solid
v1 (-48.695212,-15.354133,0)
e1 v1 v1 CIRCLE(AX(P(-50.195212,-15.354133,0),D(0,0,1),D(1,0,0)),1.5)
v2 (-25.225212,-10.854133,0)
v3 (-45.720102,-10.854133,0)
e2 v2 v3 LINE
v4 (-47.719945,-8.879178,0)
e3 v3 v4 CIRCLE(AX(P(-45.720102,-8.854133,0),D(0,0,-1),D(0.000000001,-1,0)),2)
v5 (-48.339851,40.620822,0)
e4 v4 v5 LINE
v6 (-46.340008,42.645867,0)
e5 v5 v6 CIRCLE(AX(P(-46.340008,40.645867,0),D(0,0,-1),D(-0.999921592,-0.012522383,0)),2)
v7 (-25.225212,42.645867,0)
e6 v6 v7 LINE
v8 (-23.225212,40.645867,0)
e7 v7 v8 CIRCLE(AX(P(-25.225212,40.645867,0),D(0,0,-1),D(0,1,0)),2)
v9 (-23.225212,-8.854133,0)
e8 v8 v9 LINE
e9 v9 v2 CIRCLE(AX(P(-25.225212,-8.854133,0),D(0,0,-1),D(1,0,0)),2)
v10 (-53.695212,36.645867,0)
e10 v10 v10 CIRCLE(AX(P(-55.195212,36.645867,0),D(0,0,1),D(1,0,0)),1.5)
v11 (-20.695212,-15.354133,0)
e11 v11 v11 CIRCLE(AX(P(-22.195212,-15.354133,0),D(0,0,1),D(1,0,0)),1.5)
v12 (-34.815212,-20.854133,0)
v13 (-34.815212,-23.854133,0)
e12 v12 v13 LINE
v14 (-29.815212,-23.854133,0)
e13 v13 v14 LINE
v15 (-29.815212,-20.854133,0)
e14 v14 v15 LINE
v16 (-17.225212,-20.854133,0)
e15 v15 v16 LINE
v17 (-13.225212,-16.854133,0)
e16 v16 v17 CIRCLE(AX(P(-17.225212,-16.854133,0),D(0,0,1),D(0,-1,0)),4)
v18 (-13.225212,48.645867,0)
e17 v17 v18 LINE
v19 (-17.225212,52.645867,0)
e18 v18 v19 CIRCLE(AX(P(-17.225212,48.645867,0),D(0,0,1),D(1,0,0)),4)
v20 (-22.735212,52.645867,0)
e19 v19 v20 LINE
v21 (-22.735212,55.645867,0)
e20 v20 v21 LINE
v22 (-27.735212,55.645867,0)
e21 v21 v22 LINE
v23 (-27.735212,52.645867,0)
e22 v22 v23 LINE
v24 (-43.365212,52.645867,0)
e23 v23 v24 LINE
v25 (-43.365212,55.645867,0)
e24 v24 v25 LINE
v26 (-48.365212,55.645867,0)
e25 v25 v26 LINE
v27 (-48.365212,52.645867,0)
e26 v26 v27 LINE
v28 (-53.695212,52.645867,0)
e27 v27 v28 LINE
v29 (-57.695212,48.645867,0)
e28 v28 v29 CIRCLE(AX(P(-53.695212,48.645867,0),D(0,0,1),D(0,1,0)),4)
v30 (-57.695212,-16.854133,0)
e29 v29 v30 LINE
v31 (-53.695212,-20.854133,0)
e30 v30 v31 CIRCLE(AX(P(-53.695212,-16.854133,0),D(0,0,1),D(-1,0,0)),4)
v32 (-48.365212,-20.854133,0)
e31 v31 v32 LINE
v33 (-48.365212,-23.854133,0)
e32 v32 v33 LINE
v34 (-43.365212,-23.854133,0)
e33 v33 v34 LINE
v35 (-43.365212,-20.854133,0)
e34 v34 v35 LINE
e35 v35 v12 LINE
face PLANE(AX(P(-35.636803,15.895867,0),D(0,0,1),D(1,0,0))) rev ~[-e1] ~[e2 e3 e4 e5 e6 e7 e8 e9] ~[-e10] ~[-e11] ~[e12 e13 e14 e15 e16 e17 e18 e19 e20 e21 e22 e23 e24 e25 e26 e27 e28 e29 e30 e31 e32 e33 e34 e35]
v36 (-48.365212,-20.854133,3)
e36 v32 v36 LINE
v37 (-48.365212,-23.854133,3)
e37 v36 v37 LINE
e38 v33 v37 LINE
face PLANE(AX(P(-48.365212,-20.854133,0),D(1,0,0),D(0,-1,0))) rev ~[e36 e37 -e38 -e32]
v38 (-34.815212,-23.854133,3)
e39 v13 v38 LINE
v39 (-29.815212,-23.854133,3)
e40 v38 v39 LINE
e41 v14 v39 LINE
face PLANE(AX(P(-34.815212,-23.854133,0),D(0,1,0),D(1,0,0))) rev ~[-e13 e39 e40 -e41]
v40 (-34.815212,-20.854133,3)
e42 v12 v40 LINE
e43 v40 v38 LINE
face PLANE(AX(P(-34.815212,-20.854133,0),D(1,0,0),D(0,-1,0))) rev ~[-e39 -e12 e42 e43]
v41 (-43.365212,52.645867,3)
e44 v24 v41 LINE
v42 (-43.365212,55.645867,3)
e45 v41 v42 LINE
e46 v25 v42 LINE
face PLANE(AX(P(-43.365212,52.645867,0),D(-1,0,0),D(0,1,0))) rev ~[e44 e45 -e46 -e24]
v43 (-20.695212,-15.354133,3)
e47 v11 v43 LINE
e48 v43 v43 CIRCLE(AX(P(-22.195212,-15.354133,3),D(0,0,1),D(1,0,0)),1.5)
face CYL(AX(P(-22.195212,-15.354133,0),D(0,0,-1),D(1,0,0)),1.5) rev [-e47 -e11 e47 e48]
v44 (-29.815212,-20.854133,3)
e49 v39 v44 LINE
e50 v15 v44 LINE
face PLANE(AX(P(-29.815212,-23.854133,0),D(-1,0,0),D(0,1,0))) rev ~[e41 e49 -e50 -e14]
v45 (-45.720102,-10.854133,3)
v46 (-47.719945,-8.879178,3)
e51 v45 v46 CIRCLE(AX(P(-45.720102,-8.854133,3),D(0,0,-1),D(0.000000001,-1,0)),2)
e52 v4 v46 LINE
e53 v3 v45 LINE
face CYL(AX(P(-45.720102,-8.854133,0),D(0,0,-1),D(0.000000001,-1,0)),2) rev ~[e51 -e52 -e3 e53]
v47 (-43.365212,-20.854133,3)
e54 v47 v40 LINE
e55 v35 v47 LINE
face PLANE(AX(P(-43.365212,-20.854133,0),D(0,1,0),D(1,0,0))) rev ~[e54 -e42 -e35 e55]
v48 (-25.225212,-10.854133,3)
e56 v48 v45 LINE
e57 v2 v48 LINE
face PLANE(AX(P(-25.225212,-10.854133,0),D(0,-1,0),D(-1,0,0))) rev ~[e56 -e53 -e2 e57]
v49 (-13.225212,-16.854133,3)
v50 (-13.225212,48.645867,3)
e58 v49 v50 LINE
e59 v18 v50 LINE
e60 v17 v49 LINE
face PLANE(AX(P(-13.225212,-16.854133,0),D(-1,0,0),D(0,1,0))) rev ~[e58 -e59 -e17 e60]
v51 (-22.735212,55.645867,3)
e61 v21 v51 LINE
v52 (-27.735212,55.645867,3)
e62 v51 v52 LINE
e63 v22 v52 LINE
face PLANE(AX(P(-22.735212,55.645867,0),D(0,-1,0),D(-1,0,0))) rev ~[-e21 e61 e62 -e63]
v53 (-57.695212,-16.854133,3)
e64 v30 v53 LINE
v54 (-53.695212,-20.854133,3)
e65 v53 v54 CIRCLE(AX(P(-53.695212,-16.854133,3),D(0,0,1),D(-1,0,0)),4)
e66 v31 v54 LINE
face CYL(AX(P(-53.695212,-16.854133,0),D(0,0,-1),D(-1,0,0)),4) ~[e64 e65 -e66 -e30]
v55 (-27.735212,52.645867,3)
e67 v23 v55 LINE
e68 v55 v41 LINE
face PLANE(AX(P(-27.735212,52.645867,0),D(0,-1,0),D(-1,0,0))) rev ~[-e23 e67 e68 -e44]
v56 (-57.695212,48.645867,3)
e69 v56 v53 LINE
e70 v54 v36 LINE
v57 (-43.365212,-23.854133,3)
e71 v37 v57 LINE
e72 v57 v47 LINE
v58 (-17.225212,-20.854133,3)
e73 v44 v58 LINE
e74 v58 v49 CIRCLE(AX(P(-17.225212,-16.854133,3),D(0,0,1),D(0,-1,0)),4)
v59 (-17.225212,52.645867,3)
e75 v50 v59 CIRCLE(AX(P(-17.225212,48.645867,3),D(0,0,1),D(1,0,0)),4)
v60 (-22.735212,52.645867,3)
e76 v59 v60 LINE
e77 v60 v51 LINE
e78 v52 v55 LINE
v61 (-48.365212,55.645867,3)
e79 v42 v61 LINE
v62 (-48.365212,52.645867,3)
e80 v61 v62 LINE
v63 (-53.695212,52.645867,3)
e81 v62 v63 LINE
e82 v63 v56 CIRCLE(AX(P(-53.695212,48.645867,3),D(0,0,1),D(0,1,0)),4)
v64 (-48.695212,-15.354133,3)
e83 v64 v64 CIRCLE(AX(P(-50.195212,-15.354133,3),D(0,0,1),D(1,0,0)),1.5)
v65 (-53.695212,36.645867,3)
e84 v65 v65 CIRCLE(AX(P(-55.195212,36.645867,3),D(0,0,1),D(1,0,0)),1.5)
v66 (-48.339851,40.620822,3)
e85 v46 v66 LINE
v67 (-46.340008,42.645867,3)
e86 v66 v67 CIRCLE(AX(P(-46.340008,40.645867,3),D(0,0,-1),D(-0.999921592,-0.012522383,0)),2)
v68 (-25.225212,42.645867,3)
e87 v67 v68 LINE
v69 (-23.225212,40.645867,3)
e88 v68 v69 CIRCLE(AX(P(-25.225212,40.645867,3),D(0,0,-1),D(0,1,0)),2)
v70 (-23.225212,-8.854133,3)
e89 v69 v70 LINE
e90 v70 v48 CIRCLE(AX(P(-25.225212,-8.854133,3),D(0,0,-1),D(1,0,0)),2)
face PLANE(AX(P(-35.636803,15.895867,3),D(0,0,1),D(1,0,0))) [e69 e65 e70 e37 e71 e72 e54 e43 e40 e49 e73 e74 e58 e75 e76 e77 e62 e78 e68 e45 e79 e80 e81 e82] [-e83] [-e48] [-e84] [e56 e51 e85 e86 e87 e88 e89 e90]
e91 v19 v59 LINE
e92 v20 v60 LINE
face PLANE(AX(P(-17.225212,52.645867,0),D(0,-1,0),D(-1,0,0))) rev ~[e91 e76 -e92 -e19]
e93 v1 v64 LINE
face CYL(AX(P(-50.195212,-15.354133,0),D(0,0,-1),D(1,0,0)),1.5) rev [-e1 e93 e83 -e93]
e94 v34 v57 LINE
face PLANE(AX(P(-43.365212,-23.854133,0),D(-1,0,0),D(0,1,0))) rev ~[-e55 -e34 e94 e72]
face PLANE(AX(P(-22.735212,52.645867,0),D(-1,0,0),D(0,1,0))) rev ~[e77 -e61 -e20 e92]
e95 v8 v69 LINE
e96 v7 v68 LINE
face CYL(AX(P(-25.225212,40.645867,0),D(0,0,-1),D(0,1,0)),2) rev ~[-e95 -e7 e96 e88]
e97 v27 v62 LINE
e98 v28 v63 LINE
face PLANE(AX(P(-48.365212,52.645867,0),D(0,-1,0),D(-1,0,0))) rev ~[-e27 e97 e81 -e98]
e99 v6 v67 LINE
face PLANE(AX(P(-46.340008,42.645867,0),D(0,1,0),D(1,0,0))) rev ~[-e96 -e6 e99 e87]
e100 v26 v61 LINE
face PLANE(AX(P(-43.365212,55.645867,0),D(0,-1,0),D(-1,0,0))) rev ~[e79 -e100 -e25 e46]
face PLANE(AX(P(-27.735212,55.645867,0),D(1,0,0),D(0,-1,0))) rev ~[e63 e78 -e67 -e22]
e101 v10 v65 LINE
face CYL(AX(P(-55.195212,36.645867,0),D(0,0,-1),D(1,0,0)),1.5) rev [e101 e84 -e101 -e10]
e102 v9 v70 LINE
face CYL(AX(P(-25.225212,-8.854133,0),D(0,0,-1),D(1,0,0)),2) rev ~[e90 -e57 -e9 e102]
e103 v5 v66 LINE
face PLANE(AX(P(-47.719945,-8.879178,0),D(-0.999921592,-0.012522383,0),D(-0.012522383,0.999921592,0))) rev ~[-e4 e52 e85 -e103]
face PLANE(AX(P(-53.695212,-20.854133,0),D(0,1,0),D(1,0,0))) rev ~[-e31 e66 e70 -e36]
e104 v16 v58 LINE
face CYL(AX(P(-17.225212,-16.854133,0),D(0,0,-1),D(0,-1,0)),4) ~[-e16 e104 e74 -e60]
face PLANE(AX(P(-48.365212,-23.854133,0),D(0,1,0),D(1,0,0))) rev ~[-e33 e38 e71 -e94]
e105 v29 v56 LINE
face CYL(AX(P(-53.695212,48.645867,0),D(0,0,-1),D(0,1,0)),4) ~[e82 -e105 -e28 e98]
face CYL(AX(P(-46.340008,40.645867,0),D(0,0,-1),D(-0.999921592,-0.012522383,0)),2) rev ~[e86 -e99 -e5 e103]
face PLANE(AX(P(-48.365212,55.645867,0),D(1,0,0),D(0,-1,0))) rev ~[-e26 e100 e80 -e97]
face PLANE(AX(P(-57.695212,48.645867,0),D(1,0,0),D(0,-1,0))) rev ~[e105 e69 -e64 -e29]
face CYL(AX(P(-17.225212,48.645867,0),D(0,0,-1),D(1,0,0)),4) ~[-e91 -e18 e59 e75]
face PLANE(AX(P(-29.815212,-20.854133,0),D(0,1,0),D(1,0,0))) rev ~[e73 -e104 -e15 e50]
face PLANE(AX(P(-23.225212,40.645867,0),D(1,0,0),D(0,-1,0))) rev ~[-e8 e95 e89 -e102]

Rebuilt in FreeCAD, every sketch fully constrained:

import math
import FreeCAD as App
import Part
import Sketcher

doc = App.newDocument("Part")
body = doc.addObject("PartDesign::Body", "Body")

# Sketch on XY plane
sketch1 = body.newObject("Sketcher::SketchObject", "Sketch")
sketch1.AttachmentSupport = (doc.getObject("XY_Plane"), [""])
sketch1.MapMode = "FlatFace"
sketch1.addGeometry([
    Part.LineSegment(App.Vector(-27.735212, 52.645867, 0), App.Vector(-43.365212, 52.645867, 0)),  # 0
    Part.LineSegment(App.Vector(-43.365212, 52.645867, 0), App.Vector(-43.365212, 55.645867, 0)),  # 1
    Part.LineSegment(App.Vector(-43.365212, 55.645867, 0), App.Vector(-48.365212, 55.645867, 0)),  # 2
    Part.LineSegment(App.Vector(-48.365212, 55.645867, 0), App.Vector(-48.365212, 52.645867, 0)),  # 3
    Part.LineSegment(App.Vector(-48.365212, 52.645867, 0), App.Vector(-53.695212, 52.645867, 0)),  # 4
    Part.ArcOfCircle(Part.Circle(App.Vector(-53.695212, 48.645867, 0), App.Vector(0, 0, 1), 4), math.radians(90), math.radians(180)),  # 5
    Part.LineSegment(App.Vector(-57.695212, 48.645867, 0), App.Vector(-57.695212, -16.854133, 0)),  # 6
    Part.ArcOfCircle(Part.Circle(App.Vector(-53.695212, -16.854133, 0), App.Vector(0, 0, 1), 4), math.radians(-180), math.radians(-90)),  # 7
    Part.LineSegment(App.Vector(-53.695212, -20.854133, 0), App.Vector(-48.365212, -20.854133, 0)),  # 8
    Part.LineSegment(App.Vector(-48.365212, -20.854133, 0), App.Vector(-48.365212, -23.854133, 0)),  # 9
    Part.LineSegment(App.Vector(-48.365212, -23.854133, 0), App.Vector(-43.365212, -23.854133, 0)),  # 10
    Part.LineSegment(App.Vector(-43.365212, -23.854133, 0), App.Vector(-43.365212, -20.854133, 0)),  # 11
    Part.LineSegment(App.Vector(-43.365212, -20.854133, 0), App.Vector(-34.815212, -20.854133, 0)),  # 12
    Part.LineSegment(App.Vector(-34.815212, -20.854133, 0), App.Vector(-34.815212, -23.854133, 0)),  # 13
    Part.LineSegment(App.Vector(-34.815212, -23.854133, 0), App.Vector(-29.815212, -23.854133, 0)),  # 14
    Part.LineSegment(App.Vector(-29.815212, -23.854133, 0), App.Vector(-29.815212, -20.854133, 0)),  # 15
    Part.LineSegment(App.Vector(-29.815212, -20.854133, 0), App.Vector(-17.225212, -20.854133, 0)),  # 16
    Part.ArcOfCircle(Part.Circle(App.Vector(-17.225212, -16.854133, 0), App.Vector(0, 0, 1), 4), math.radians(-90), math.radians(0)),  # 17
    Part.LineSegment(App.Vector(-13.225212, -16.854133, 0), App.Vector(-13.225212, 48.645867, 0)),  # 18
    Part.ArcOfCircle(Part.Circle(App.Vector(-17.225212, 48.645867, 0), App.Vector(0, 0, 1), 4), math.radians(0), math.radians(90)),  # 19
    Part.LineSegment(App.Vector(-17.225212, 52.645867, 0), App.Vector(-22.735212, 52.645867, 0)),  # 20
    Part.LineSegment(App.Vector(-22.735212, 52.645867, 0), App.Vector(-22.735212, 55.645867, 0)),  # 21
    Part.LineSegment(App.Vector(-22.735212, 55.645867, 0), App.Vector(-27.735212, 55.645867, 0)),  # 22
    Part.LineSegment(App.Vector(-27.735212, 55.645867, 0), App.Vector(-27.735212, 52.645867, 0)),  # 23
    Part.Circle(App.Vector(-50.195212, -15.354133, 0), App.Vector(0, 0, 1), 1.5),  # 24
    Part.Circle(App.Vector(-22.195212, -15.354133, 0), App.Vector(0, 0, 1), 1.5),  # 25
    Part.Circle(App.Vector(-55.195212, 36.645867, 0), App.Vector(0, 0, 1), 1.5),  # 26
    Part.LineSegment(App.Vector(-46.340008, 42.645867, 0), App.Vector(-25.225212, 42.645867, 0)),  # 27
    Part.ArcOfCircle(Part.Circle(App.Vector(-25.225212, 40.645867, 0), App.Vector(0, 0, 1), 2), math.radians(0), math.radians(90)),  # 28
    Part.LineSegment(App.Vector(-23.225212, 40.645867, 0), App.Vector(-23.225212, -8.854133, 0)),  # 29
    Part.ArcOfCircle(Part.Circle(App.Vector(-25.225212, -8.854133, 0), App.Vector(0, 0, 1), 2), math.radians(-90), math.radians(0)),  # 30
    Part.LineSegment(App.Vector(-25.225212, -10.854133, 0), App.Vector(-45.720102, -10.854133, 0)),  # 31
    Part.ArcOfCircle(Part.Circle(App.Vector(-45.720102, -8.854133, 0), App.Vector(0, 0, 1), 2), math.radians(-179.282502), math.radians(-90)),  # 32
    Part.LineSegment(App.Vector(-47.719945, -8.879178, 0), App.Vector(-48.339851, 40.620822, 0)),  # 33
    Part.ArcOfCircle(Part.Circle(App.Vector(-46.340008, 40.645867, 0), App.Vector(0, 0, 1), 2), math.radians(90), math.radians(180.717498)),  # 34
], False)
sketch1.addConstraint([
    Sketcher.Constraint("Coincident", 0, 2, 1, 1),
    Sketcher.Constraint("Coincident", 1, 2, 2, 1),
    Sketcher.Constraint("Coincident", 2, 2, 3, 1),
    Sketcher.Constraint("Coincident", 3, 2, 4, 1),
    Sketcher.Constraint("Coincident", 4, 2, 5, 1),
    Sketcher.Constraint("Coincident", 5, 2, 6, 1),
    Sketcher.Constraint("Coincident", 6, 2, 7, 1),
    Sketcher.Constraint("Coincident", 7, 2, 8, 1),
    Sketcher.Constraint("Coincident", 8, 2, 9, 1),
    Sketcher.Constraint("Coincident", 9, 2, 10, 1),
    Sketcher.Constraint("Coincident", 10, 2, 11, 1),
    Sketcher.Constraint("Coincident", 11, 2, 12, 1),
    Sketcher.Constraint("Coincident", 12, 2, 13, 1),
    Sketcher.Constraint("Coincident", 13, 2, 14, 1),
    Sketcher.Constraint("Coincident", 14, 2, 15, 1),
    Sketcher.Constraint("Coincident", 15, 2, 16, 1),
    Sketcher.Constraint("Coincident", 16, 2, 17, 1),
    Sketcher.Constraint("Coincident", 17, 2, 18, 1),
    Sketcher.Constraint("Coincident", 18, 2, 19, 1),
    Sketcher.Constraint("Coincident", 19, 2, 20, 1),
    Sketcher.Constraint("Coincident", 20, 2, 21, 1),
    Sketcher.Constraint("Coincident", 21, 2, 22, 1),
    Sketcher.Constraint("Coincident", 22, 2, 23, 1),
    Sketcher.Constraint("Coincident", 23, 2, 0, 1),
    Sketcher.Constraint("Coincident", 27, 2, 28, 2),
    Sketcher.Constraint("Coincident", 28, 1, 29, 1),
    Sketcher.Constraint("Coincident", 29, 2, 30, 2),
    Sketcher.Constraint("Coincident", 30, 1, 31, 1),
    Sketcher.Constraint("Coincident", 31, 2, 32, 2),
    Sketcher.Constraint("Coincident", 32, 1, 33, 1),
    Sketcher.Constraint("Coincident", 33, 2, 34, 2),
    Sketcher.Constraint("Coincident", 34, 1, 27, 1),
    Sketcher.Constraint("Horizontal", 0),
    Sketcher.Constraint("Vertical", 1),
    Sketcher.Constraint("Horizontal", 2),
    Sketcher.Constraint("Vertical", 3),
    Sketcher.Constraint("Horizontal", 4),
    Sketcher.Constraint("Vertical", 6),
    Sketcher.Constraint("Horizontal", 8),
    Sketcher.Constraint("Vertical", 9),
    Sketcher.Constraint("Horizontal", 10),
    Sketcher.Constraint("Vertical", 11),
    Sketcher.Constraint("Horizontal", 12),
    Sketcher.Constraint("Vertical", 13),
    Sketcher.Constraint("Horizontal", 14),
    Sketcher.Constraint("Vertical", 15),
    Sketcher.Constraint("Horizontal", 16),
    Sketcher.Constraint("Vertical", 18),
    Sketcher.Constraint("Horizontal", 20),
    Sketcher.Constraint("Vertical", 21),
    Sketcher.Constraint("Horizontal", 22),
    Sketcher.Constraint("Vertical", 23),
    Sketcher.Constraint("Horizontal", 27),
    Sketcher.Constraint("Vertical", 29),
    Sketcher.Constraint("Horizontal", 31),
    Sketcher.Constraint("Diameter", 24, 3.0),
    Sketcher.Constraint("Diameter", 25, 3.0),
    Sketcher.Constraint("Diameter", 26, 3.0),
    Sketcher.Constraint("Radius", 5, 4.0),
    Sketcher.Constraint("Radius", 7, 4.0),
    Sketcher.Constraint("Radius", 17, 4.0),
    Sketcher.Constraint("Radius", 19, 4.0),
    Sketcher.Constraint("Radius", 28, 2.0),
    Sketcher.Constraint("Radius", 30, 2.0),
    Sketcher.Constraint("Radius", 32, 2.0),
    Sketcher.Constraint("Radius", 34, 2.0),
    Sketcher.Constraint("DistanceX", 2, 2, 2, 1, 5.0),
    Sketcher.Constraint("DistanceX", 10, 1, 10, 2, 5.0),
    Sketcher.Constraint("DistanceX", 14, 1, 14, 2, 5.0),
    Sketcher.Constraint("DistanceX", 22, 2, 22, 1, 5.0),
    Sketcher.Constraint("DistanceY", 1, 1, 1, 2, 3.0),
    Sketcher.Constraint("DistanceY", 3, 2, 3, 1, 3.0),
    Sketcher.Constraint("DistanceY", 9, 2, 9, 1, 3.0),
    Sketcher.Constraint("DistanceY", 11, 1, 11, 2, 3.0),
    Sketcher.Constraint("DistanceY", 13, 2, 13, 1, 3.0),
    Sketcher.Constraint("DistanceY", 15, 1, 15, 2, 3.0),
    Sketcher.Constraint("DistanceY", 21, 1, 21, 2, 3.0),
    Sketcher.Constraint("DistanceY", 23, 2, 23, 1, 3.0),
    Sketcher.Constraint("DistanceY", 6, 2, 6, 1, 65.5),
    Sketcher.Constraint("DistanceY", 18, 1, 18, 2, 65.5),
    Sketcher.Constraint("DistanceY", 29, 2, 29, 1, 49.5),
    Sketcher.Constraint("DistanceY", 24, 3, 5, 3, 64.0),
    Sketcher.Constraint("DistanceX", 24, 3, 25, 3, 28.0),
    Sketcher.Constraint("DistanceY", 25, 3, 19, 3, 64.0),
    Sketcher.Constraint("DistanceY", 26, 3, 5, 3, 12.0),
    Sketcher.Constraint("DistanceX", 26, 3, 24, 3, 5.0),
    Sketcher.Constraint("DistanceX", 28, 3, 19, 3, 8.0),
    Sketcher.Constraint("DistanceY", 28, 3, 19, 3, 8.0),
    Sketcher.Constraint("DistanceY", 17, 3, 30, 3, 8.0),
    Sketcher.Constraint("DistanceX", 5, 2, 4, 2, 4.0),
    Sketcher.Constraint("DistanceY", 5, 2, 4, 2, 4.0),
    Sketcher.Constraint("DistanceY", 6, 2, 32, 3, 8.0),
    Sketcher.Constraint("DistanceX", 6, 2, 7, 2, 4.0),
    Sketcher.Constraint("DistanceX", 30, 3, 16, 2, 8.0),
    Sketcher.Constraint("DistanceY", 16, 2, 17, 2, 4.0),
    Sketcher.Constraint("DistanceX", 19, 2, 18, 2, 4.0),
    Sketcher.Constraint("DistanceX", 27, 2, 19, 3, 8.0),
    Sketcher.Constraint("DistanceY", 28, 1, 27, 2, 2.0),
    Sketcher.Constraint("DistanceX", 30, 1, 29, 2, 2.0),
    Sketcher.Constraint("DistanceX", 0, 2, 0, 1, 15.63),
    Sketcher.Constraint("DistanceX", 4, 2, 4, 1, 5.33),
    Sketcher.Constraint("DistanceX", 8, 1, 8, 2, 5.33),
    Sketcher.Constraint("DistanceX", 12, 1, 12, 2, 8.55),
    Sketcher.Constraint("DistanceX", 16, 1, 16, 2, 12.59),
    Sketcher.Constraint("DistanceX", 7, 3, 24, 3, 3.5),
    Sketcher.Constraint("DistanceX", 31, 2, 31, 1, 20.49489),
    Sketcher.Constraint("DistanceX", 32, 3, -1, 1, 45.720102),
    Sketcher.Constraint("DistanceX", 31, 2, -1, 1, 45.720102),
    Sketcher.Constraint("Distance", 33, 49.503882),
    Sketcher.Constraint("DistanceX", 27, 1, 27, 2, 21.114796),
    Sketcher.Constraint("DistanceX", 34, 3, -1, 1, 46.340008),
    Sketcher.Constraint("DistanceY", 32, 1, -1, 1, 8.879178),
    Sketcher.Constraint("DistanceY", -1, 1, 5, 3, 48.645867),
])
pad1 = body.newObject("PartDesign::Pad", "Pad")
pad1.Profile = sketch1
pad1.Length = 3

doc.recompute()
